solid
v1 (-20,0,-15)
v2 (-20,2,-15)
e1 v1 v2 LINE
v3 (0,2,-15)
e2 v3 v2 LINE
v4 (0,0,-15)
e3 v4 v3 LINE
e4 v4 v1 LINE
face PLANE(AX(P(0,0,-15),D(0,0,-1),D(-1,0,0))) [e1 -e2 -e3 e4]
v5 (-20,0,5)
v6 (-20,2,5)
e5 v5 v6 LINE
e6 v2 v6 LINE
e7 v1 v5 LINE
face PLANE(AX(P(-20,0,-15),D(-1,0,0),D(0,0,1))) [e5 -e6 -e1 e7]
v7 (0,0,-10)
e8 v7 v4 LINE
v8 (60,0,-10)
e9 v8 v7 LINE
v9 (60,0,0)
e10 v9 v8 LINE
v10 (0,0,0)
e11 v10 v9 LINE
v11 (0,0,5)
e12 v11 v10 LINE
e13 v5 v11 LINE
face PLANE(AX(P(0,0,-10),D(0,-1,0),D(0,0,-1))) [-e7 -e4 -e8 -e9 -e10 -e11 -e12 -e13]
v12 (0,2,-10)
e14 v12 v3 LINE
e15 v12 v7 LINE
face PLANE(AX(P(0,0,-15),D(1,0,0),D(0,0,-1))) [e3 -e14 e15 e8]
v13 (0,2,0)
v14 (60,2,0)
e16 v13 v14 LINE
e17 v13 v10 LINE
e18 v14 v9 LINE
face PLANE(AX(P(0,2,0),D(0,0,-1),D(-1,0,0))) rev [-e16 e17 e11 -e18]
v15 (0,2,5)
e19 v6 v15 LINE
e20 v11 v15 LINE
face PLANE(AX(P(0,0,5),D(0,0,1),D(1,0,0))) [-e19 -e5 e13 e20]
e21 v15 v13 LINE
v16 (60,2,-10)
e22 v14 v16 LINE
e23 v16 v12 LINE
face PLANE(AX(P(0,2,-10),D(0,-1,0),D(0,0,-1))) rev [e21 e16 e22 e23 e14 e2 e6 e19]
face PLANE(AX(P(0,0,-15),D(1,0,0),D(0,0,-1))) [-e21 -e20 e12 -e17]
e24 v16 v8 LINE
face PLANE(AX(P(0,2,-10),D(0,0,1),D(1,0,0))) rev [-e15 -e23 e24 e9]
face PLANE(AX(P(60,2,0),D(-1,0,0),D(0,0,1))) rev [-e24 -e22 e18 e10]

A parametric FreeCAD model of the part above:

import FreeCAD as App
import Part
import Sketcher
from FreeCAD import Vector


def add_polygon(sketch, points):
    """Adds a closed chain of lines whose ends are joined by coincident constraints."""
    first, n = sketch.GeometryCount, len(points)
    for a, b in zip(points, points[1:] + points[:1]):
        sketch.addGeometry(Part.LineSegment(App.Vector(*a, 0), App.Vector(*b, 0)), False)
    for i in range(n):
        sketch.addConstraint(Sketcher.Constraint("Coincident", first + i, 2, first + (i + 1) % n, 1))

doc = App.newDocument("Part")
body = doc.addObject("PartDesign::Body", "Body")

# Sketch on XZ plane
sketch1 = doc.addObject("Sketcher::SketchObject", "Sketch")
body.addObject(sketch1)
sketch1.AttachmentSupport = (doc.XZ_Plane, [""])
sketch1.MapMode = "FlatFace"
add_polygon(sketch1, [(0, -10), (0, 0), (60, 0), (60, -10)])  # lines 0-3
sketch1.addConstraint(Sketcher.Constraint("Vertical", 0))
sketch1.addConstraint(Sketcher.Constraint("Horizontal", 1))
sketch1.addConstraint(Sketcher.Constraint("Vertical", 2))
sketch1.addConstraint(Sketcher.Constraint("Horizontal", 3))
sketch1.addConstraint(Sketcher.Constraint("Coincident", 0, 2, -1, 1))
sketch1.addConstraint(Sketcher.Constraint("DistanceX", 1, 1, 1, 2, 60.0))
sketch1.addConstraint(Sketcher.Constraint("DistanceY", 0, 1, 0, 2, 10.0))
pad1 = doc.addObject("PartDesign::Pad", "Pad")
body.addObject(pad1)
pad1.Profile = sketch1
pad1.Length = 2
pad1.Reversed = True

# Sketch on XZ plane
sketch2 = doc.addObject("Sketcher::SketchObject", "Sketch001")
body.addObject(sketch2)
sketch2.AttachmentSupport = (doc.XZ_Plane, [""])
sketch2.MapMode = "FlatFace"
sketch2.AttachmentOffset = App.Placement(Vector(0, 0, -2), App.Rotation())
add_polygon(sketch2, [(0, 5), (0, -15), (-20, -15), (-20, 5)])  # lines 0-3
sketch2.addConstraint(Sketcher.Constraint("Vertical", 0))
sketch2.addConstraint(Sketcher.Constraint("Horizontal", 1))
sketch2.addConstraint(Sketcher.Constraint("Vertical", 2))
sketch2.addConstraint(Sketcher.Constraint("Horizontal", 3))
sketch2.addConstraint(Sketcher.Constraint("PointOnObject", 0, 2, -2))
sketch2.addConstraint(Sketcher.Constraint("Equal", 3, 0))
sketch2.addConstraint(Sketcher.Constraint("DistanceX", 1, 2, 1, 1, 20.0))
sketch2.addConstraint(Sketcher.Constraint("DistanceY", 0, 2, -1, 1, 15.0))
pad2 = doc.addObject("PartDesign::Pad", "Pad001")
body.addObject(pad2)
pad2.Profile = sketch2
pad2.Length = 2

doc.recompute()
